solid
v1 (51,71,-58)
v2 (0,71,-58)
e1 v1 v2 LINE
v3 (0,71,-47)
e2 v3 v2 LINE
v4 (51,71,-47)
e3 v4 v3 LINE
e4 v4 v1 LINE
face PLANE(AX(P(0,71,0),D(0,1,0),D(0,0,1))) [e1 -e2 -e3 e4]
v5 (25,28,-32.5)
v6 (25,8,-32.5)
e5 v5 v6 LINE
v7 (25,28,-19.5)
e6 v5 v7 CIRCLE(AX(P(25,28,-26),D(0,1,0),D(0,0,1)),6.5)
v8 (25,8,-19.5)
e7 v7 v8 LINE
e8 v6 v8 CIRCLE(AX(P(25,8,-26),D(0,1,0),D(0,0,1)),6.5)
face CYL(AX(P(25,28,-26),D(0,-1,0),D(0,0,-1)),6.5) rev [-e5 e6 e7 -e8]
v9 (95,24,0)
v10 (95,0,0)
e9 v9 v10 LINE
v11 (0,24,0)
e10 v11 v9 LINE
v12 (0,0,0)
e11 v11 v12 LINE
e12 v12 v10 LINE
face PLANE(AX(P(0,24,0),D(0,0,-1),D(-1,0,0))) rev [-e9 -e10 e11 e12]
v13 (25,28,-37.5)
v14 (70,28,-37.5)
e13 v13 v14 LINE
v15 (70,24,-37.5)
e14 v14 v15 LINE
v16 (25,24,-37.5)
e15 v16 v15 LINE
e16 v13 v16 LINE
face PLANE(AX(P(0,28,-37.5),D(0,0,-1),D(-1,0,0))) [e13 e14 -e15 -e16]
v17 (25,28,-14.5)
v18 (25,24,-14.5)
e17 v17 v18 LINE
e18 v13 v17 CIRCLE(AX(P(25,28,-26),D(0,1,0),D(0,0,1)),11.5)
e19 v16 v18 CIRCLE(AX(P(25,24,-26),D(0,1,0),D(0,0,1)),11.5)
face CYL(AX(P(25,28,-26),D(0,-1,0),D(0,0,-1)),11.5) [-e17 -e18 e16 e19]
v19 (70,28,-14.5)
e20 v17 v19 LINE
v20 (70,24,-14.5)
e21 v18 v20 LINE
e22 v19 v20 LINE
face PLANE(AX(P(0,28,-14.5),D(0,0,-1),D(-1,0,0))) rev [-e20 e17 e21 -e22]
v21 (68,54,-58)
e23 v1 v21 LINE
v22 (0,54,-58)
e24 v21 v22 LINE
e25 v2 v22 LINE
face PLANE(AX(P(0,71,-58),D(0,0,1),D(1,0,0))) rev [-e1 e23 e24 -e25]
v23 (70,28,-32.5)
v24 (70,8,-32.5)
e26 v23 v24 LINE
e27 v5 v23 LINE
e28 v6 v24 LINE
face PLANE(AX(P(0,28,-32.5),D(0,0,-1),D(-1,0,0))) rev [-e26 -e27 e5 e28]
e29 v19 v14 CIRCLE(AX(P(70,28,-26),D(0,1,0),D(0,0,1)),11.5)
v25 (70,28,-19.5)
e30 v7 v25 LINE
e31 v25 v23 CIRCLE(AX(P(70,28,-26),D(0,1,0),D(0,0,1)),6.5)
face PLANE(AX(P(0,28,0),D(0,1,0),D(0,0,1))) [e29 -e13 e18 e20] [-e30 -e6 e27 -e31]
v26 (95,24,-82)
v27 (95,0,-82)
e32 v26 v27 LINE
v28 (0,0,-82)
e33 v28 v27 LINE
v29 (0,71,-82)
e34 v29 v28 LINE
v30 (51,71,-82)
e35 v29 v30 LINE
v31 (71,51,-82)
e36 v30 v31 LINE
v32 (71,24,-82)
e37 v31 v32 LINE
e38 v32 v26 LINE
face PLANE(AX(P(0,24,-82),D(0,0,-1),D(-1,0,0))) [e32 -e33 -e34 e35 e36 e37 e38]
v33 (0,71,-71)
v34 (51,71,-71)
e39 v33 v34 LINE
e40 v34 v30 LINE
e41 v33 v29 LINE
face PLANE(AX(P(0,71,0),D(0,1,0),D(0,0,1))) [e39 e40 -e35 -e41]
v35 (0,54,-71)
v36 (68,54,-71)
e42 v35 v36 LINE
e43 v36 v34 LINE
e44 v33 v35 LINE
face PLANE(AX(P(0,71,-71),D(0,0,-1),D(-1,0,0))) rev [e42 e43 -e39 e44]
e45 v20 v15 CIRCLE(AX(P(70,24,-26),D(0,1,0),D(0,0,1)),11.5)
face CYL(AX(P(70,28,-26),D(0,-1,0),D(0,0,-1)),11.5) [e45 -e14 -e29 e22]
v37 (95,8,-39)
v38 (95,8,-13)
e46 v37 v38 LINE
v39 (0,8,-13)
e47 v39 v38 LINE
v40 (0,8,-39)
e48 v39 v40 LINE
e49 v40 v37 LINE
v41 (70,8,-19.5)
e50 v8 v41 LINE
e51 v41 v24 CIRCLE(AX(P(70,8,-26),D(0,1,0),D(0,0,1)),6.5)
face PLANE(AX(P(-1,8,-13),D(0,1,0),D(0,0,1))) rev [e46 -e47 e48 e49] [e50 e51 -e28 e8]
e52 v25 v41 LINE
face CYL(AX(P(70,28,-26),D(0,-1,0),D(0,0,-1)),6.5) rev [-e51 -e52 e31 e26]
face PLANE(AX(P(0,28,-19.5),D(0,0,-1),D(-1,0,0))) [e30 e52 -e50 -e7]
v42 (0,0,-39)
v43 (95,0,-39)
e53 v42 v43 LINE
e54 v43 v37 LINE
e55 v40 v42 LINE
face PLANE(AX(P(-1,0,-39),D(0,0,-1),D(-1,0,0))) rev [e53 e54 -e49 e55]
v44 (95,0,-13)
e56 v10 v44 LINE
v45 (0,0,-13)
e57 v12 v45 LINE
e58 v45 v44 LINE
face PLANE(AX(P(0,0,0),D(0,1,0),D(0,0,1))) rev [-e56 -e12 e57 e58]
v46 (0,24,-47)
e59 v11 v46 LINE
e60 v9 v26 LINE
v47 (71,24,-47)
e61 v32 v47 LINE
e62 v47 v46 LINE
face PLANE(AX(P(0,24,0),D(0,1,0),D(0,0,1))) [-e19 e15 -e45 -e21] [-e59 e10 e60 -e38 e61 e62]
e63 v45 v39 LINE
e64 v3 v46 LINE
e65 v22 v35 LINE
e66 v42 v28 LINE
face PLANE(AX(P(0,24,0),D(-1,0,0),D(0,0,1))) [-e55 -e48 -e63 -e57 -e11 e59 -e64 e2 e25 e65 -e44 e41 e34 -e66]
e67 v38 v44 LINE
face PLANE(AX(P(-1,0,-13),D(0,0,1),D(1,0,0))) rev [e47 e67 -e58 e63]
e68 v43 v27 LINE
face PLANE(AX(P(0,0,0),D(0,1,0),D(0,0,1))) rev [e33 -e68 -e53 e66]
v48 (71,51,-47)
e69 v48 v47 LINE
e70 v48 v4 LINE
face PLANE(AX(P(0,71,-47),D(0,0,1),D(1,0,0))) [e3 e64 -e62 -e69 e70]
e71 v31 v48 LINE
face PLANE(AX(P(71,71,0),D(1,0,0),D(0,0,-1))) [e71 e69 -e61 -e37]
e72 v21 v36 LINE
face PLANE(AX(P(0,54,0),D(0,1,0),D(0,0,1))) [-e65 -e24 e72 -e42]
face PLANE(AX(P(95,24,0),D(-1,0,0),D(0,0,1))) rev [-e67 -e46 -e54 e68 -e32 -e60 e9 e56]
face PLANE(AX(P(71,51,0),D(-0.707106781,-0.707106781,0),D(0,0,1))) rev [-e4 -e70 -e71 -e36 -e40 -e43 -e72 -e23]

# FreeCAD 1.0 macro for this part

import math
import FreeCAD as App
import Part
import Sketcher
from FreeCAD import Vector


def edges_at(feature, points):
    """Names of the edges that pass closest to the given points."""
    edges = feature.Shape.Edges
    near = lambda p: min(range(len(edges)), key=lambda i: edges[i].distToShape(Part.Vertex(*p))[0])
    return sorted({f"Edge{near(p) + 1}" for p in points})


def add_polygon(sketch, points):
    """Adds a closed chain of lines whose ends are joined by coincident constraints."""
    first, n = sketch.GeometryCount, len(points)
    for a, b in zip(points, points[1:] + points[:1]):
        sketch.addGeometry(Part.LineSegment(App.Vector(*a, 0), App.Vector(*b, 0)), False)
    for i in range(n):
        sketch.addConstraint(Sketcher.Constraint("Coincident", first + i, 2, first + (i + 1) % n, 1))

doc = App.newDocument("Part")
body = doc.addObject("PartDesign::Body", "Body")

# Sketch on XZ plane
sketch1 = doc.addObject("Sketcher::SketchObject", "Sketch")
body.addObject(sketch1)
sketch1.AttachmentSupport = (doc.XZ_Plane, [""])
sketch1.MapMode = "FlatFace"
add_polygon(sketch1, [(0, -47), (0, 0), (95, 0), (95, -82), (71, -82), (71, -47)])  # lines 0-5
sketch1.addGeometry(Part.LineSegment(Vector(70, -14.5, 0), Vector(25, -14.5, 0)), False)  # 6
sketch1.addGeometry(Part.ArcOfCircle(Part.Circle(Vector(25, -26, 0), Vector(0, 0, 1), 11.5), math.radians(90), math.radians(270)), False)  # 7
sketch1.addGeometry(Part.LineSegment(Vector(25, -37.5, 0), Vector(70, -37.5, 0)), False)  # 8
sketch1.addGeometry(Part.ArcOfCircle(Part.Circle(Vector(70, -26, 0), Vector(0, 0, 1), 11.5), math.radians(-90), math.radians(90)), False)  # 9
sketch1.addConstraint([
    Sketcher.Constraint("Tangent", 6, 2, 7, 1),
    Sketcher.Constraint("Tangent", 7, 2, 8, 1),
    Sketcher.Constraint("Tangent", 8, 2, 9, 1),
    Sketcher.Constraint("Tangent", 9, 2, 6, 1),
    Sketcher.Constraint("Vertical", 0),
    Sketcher.Constraint("Horizontal", 1),
    Sketcher.Constraint("Vertical", 2),
    Sketcher.Constraint("Horizontal", 3),
    Sketcher.Constraint("Vertical", 4),
    Sketcher.Constraint("Horizontal", 5),
    Sketcher.Constraint("Horizontal", 6),
    Sketcher.Constraint("Horizontal", 8),
    Sketcher.Constraint("Coincident", 0, 2, -1, 1),
    Sketcher.Constraint("Radius", 7, 11.5),
    Sketcher.Constraint("DistanceX", 1, 1, 1, 2, 95.0),
    Sketcher.Constraint("DistanceX", 3, 2, 3, 1, 24.0),
    Sketcher.Constraint("DistanceX", 6, 2, 6, 1, 45.0),
    Sketcher.Constraint("DistanceY", 0, 1, 0, 2, 47.0),
    Sketcher.Constraint("DistanceY", 2, 2, 2, 1, 82.0),
    Sketcher.Constraint("DistanceX", -1, 1, 7, 3, 25.0),
    Sketcher.Constraint("DistanceY", 7, 3, -1, 1, 26.0),
])
pad1 = doc.addObject("PartDesign::Pad", "Pad")
body.addObject(pad1)
pad1.Profile = sketch1
pad1.Length = 24
pad1.Reversed = True

# Sketch on XZ plane
sketch2 = doc.addObject("Sketcher::SketchObject", "Sketch001")
body.addObject(sketch2)
sketch2.AttachmentSupport = (doc.XZ_Plane, [""])
sketch2.MapMode = "FlatFace"
sketch2.addGeometry([
    Part.LineSegment(Vector(25, -14.5, 0), Vector(70, -14.5, 0)),  # 0
    Part.ArcOfCircle(Part.Circle(Vector(70, -26, 0), Vector(0, 0, 1), 11.5), math.radians(-90), math.radians(90)),  # 1
    Part.LineSegment(Vector(70, -37.5, 0), Vector(25, -37.5, 0)),  # 2
    Part.ArcOfCircle(Part.Circle(Vector(25, -26, 0), Vector(0, 0, 1), 11.5), math.radians(90), math.radians(270)),  # 3
    Part.ArcOfCircle(Part.Circle(Vector(25, -26, 0), Vector(0, 0, 1), 6.5), math.radians(90), math.radians(270)),  # 4
    Part.LineSegment(Vector(25, -32.5, 0), Vector(70, -32.5, 0)),  # 5
    Part.ArcOfCircle(Part.Circle(Vector(70, -26, 0), Vector(0, 0, 1), 6.5), math.radians(-90), math.radians(90)),  # 6
    Part.LineSegment(Vector(70, -19.5, 0), Vector(25, -19.5, 0)),  # 7
], False)
sketch2.addConstraint([
    Sketcher.Constraint("Tangent", 0, 2, 1, 2),
    Sketcher.Constraint("Tangent", 1, 1, 2, 1),
    Sketcher.Constraint("Tangent", 2, 2, 3, 2),
    Sketcher.Constraint("Tangent", 3, 1, 0, 1),
    Sketcher.Constraint("Tangent", 4, 2, 5, 1),
    Sketcher.Constraint("Tangent", 5, 2, 6, 1),
    Sketcher.Constraint("Tangent", 6, 2, 7, 1),
    Sketcher.Constraint("Tangent", 7, 2, 4, 1),
    Sketcher.Constraint("Horizontal", 0),
    Sketcher.Constraint("Horizontal", 2),
    Sketcher.Constraint("Horizontal", 5),
    Sketcher.Constraint("Horizontal", 7),
    Sketcher.Constraint("Coincident", 4, 3, 3, 3),
    Sketcher.Constraint("Vertical", 6, 3, 0, 2),
    Sketcher.Constraint("Radius", 1, 11.5),
    Sketcher.Constraint("Radius", 4, 6.5),
    Sketcher.Constraint("DistanceX", 0, 1, 0, 2, 45.0),
    Sketcher.Constraint("DistanceX", -1, 1, 1, 3, 70.0),
    Sketcher.Constraint("DistanceY", 1, 3, -1, 1, 26.0),
])
pad2 = doc.addObject("PartDesign::Pad", "Pad001")
body.addObject(pad2)
pad2.Profile = sketch2
pad2.Length = 28
pad2.Reversed = True

# Sketch on XZ plane
sketch3 = doc.addObject("Sketcher::SketchObject", "Sketch002")
body.addObject(sketch3)
sketch3.AttachmentSupport = (doc.XZ_Plane, [""])
sketch3.MapMode = "FlatFace"
add_polygon(sketch3, [(0, -82), (0, -71), (71, -71), (71, -82)])  # lines 0-3
add_polygon(sketch3, [(0, -58), (0, -47), (71, -47), (71, -58)])  # lines 4-7
sketch3.addConstraint([
    Sketcher.Constraint("Vertical", 0),
    Sketcher.Constraint("Horizontal", 1),
    Sketcher.Constraint("Vertical", 2),
    Sketcher.Constraint("Horizontal", 3),
    Sketcher.Constraint("Vertical", 4),
    Sketcher.Constraint("Horizontal", 5),
    Sketcher.Constraint("Vertical", 6),
    Sketcher.Constraint("Horizontal", 7),
    Sketcher.Constraint("PointOnObject", 0, 2, -2),
    Sketcher.Constraint("PointOnObject", 4, 2, -2),
    Sketcher.Constraint("Vertical", 2, 2, 5, 2),
    Sketcher.Constraint("Equal", 2, 4),
    Sketcher.Constraint("DistanceX", 1, 1, 1, 2, 71.0),
    Sketcher.Constraint("DistanceY", 0, 1, 0, 2, 11.0),
    Sketcher.Constraint("DistanceY", 0, 2, -1, 1, 71.0),
    Sketcher.Constraint("DistanceY", 4, 2, -1, 1, 47.0),
])
pad3 = doc.addObject("PartDesign::Pad", "Pad002")
body.addObject(pad3)
pad3.Profile = sketch3
pad3.Length = 71
pad3.Reversed = True

# Sketch on XZ plane
sketch4 = doc.addObject("Sketcher::SketchObject", "Sketch003")
body.addObject(sketch4)
sketch4.AttachmentSupport = (doc.XZ_Plane, [""])
sketch4.MapMode = "FlatFace"
add_polygon(sketch4, [(0, -71), (0, -58), (71, -58), (71, -71)])  # lines 0-3
sketch4.addConstraint([
    Sketcher.Constraint("Vertical", 0),
    Sketcher.Constraint("Horizontal", 1),
    Sketcher.Constraint("Vertical", 2),
    Sketcher.Constraint("Horizontal", 3),
    Sketcher.Constraint("PointOnObject", 0, 2, -2),
    Sketcher.Constraint("DistanceX", 1, 1, 1, 2, 71.0),
    Sketcher.Constraint("DistanceY", 0, 1, 0, 2, 13.0),
    Sketcher.Constraint("DistanceY", 0, 2, -1, 1, 58.0),
])
pad4 = doc.addObject("PartDesign::Pad", "Pad003")
body.addObject(pad4)
pad4.Profile = sketch4
pad4.Length = 54
pad4.Reversed = True

# Sketch on YZ plane
sketch5 = doc.addObject("Sketcher::SketchObject", "Sketch004")
body.addObject(sketch5)
sketch5.AttachmentSupport = (doc.YZ_Plane, [""])
sketch5.MapMode = "FlatFace"
sketch5.AttachmentOffset = App.Placement(Vector(0, 0, 95), App.Rotation())
add_polygon(sketch5, [(8, -13), (0, -13), (0, -39), (8, -39)])  # lines 0-3
sketch5.addConstraint([
    Sketcher.Constraint("Horizontal", 0),
    Sketcher.Constraint("Vertical", 1),
    Sketcher.Constraint("Horizontal", 2),
    Sketcher.Constraint("Vertical", 3),
    Sketcher.Constraint("PointOnObject", 0, 2, -2),
    Sketcher.Constraint("DistanceX", 0, 2, 0, 1, 8.0),
    Sketcher.Constraint("DistanceY", 1, 2, 1, 1, 26.0),
    Sketcher.Constraint("DistanceY", 0, 2, -1, 1, 13.0),
])
pocket1 = doc.addObject("PartDesign::Pocket", "Pocket")
body.addObject(pocket1)
pocket1.Profile = sketch5
pocket1.Length = 96
doc.recompute()

chamfer = doc.addObject("PartDesign::Chamfer", "Chamfer")
body.addObject(chamfer)
chamfer.Base = (pocket1, edges_at(pocket1, [(71, 71, -76.5)]))
chamfer.Size = 20

doc.recompute()
